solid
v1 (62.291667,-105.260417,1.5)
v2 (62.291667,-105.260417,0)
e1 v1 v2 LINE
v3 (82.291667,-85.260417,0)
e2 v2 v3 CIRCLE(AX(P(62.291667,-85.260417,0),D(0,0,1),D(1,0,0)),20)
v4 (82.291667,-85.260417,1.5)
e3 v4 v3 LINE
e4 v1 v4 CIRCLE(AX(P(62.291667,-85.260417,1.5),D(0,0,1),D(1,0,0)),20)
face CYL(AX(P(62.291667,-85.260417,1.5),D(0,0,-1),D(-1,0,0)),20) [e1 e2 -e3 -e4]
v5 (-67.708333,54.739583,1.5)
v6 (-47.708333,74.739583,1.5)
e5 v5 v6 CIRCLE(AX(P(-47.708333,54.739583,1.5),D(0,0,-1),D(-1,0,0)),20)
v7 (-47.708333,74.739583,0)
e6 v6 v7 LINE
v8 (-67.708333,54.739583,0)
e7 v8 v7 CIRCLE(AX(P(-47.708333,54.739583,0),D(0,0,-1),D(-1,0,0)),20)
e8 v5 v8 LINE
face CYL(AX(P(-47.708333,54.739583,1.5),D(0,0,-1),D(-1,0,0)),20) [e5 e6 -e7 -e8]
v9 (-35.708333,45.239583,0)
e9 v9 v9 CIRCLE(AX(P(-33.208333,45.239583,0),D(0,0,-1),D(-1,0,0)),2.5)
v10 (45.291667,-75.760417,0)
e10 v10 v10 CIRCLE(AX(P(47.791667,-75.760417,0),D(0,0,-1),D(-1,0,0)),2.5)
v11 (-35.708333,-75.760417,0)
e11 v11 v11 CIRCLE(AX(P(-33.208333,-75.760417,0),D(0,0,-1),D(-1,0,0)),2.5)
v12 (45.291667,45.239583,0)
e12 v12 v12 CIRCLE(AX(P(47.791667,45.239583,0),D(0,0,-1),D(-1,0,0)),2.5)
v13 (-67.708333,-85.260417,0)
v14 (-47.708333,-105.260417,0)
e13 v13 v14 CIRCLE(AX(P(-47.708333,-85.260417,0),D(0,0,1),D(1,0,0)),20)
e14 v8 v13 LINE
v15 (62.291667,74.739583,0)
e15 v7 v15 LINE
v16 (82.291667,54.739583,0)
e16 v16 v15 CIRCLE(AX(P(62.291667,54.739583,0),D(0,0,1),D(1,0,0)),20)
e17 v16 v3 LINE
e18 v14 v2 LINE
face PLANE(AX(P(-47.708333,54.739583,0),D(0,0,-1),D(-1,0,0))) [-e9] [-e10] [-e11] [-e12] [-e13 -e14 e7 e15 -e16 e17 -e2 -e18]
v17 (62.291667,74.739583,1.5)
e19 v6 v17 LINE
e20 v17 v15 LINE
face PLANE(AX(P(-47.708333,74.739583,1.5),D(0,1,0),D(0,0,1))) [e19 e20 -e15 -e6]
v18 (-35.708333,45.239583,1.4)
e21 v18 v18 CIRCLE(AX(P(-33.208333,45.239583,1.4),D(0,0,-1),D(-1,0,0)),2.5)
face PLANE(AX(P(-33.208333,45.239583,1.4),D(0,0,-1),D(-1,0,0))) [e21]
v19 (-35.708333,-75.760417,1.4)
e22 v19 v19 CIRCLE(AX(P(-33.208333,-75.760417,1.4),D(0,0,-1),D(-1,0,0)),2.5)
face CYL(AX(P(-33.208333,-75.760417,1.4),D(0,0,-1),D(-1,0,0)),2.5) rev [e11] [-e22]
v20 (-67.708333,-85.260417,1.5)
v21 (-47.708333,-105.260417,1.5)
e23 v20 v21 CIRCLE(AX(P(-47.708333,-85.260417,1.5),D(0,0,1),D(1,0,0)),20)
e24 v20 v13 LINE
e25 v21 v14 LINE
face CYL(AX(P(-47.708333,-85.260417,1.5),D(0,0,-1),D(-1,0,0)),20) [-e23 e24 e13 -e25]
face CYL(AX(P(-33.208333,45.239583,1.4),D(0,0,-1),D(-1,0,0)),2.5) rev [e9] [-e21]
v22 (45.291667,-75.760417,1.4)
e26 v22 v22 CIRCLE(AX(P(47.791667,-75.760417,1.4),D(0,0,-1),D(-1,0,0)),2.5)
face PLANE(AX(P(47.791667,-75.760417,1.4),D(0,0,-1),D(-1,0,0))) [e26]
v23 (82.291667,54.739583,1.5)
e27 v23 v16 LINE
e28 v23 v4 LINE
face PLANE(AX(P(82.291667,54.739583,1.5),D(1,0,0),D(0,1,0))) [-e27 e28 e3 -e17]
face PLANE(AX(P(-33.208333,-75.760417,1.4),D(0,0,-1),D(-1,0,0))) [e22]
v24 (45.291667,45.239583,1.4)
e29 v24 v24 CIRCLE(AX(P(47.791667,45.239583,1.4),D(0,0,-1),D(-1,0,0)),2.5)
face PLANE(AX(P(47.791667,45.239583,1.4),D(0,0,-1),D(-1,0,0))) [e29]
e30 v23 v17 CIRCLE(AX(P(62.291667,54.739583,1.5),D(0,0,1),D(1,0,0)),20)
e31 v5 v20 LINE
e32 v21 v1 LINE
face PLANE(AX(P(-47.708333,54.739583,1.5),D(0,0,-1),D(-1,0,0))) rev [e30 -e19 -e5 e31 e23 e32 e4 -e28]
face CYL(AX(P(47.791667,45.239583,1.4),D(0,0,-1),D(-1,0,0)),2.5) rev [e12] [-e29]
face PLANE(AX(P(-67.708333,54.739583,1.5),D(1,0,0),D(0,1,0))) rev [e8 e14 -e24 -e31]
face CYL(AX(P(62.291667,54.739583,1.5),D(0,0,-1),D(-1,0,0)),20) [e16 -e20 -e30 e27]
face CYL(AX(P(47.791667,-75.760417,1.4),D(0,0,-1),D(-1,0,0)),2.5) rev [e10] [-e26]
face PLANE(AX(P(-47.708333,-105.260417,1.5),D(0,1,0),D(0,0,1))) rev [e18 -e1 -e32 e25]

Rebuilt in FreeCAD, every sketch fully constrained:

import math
import FreeCAD as App
import Part
import Sketcher

doc = App.newDocument("Part")
body = doc.addObject("PartDesign::Body", "Body")

# Sketch on XY plane
sketch1 = doc.addObject("Sketcher::SketchObject", "Sketch")
body.addObject(sketch1)
sketch1.AttachmentSupport = (doc.XY_Plane, [""])
sketch1.MapMode = "FlatFace"
sketch1.addGeometry(Part.LineSegment(App.Vector(62, 75, 0), App.Vector(-48, 75, 0)), False)
sketch1.addGeometry(Part.ArcOfCircle(Part.Circle(App.Vector(-48, 55, 0), App.Vector(0, 0, 1), 20), math.radians(90), math.radians(180)), False)
sketch1.addGeometry(Part.LineSegment(App.Vector(-68, 55, 0), App.Vector(-68, -85, 0)), False)
sketch1.addGeometry(Part.ArcOfCircle(Part.Circle(App.Vector(-48, -85, 0), App.Vector(0, 0, 1), 20), math.radians(-180), math.radians(-90)), False)
sketch1.addGeometry(Part.LineSegment(App.Vector(-48, -105, 0), App.Vector(62, -105, 0)), False)
sketch1.addGeometry(Part.ArcOfCircle(Part.Circle(App.Vector(62, -85, 0), App.Vector(0, 0, 1), 20), math.radians(-90), math.radians(0)), False)
sketch1.addGeometry(Part.LineSegment(App.Vector(82, -85, 0), App.Vector(82, 55, 0)), False)
sketch1.addGeometry(Part.ArcOfCircle(Part.Circle(App.Vector(62, 55, 0), App.Vector(0, 0, 1), 20), math.radians(0), math.radians(90)), False)
sketch1.addConstraint(Sketcher.Constraint("Tangent", 0, 2, 1, 1))
sketch1.addConstraint(Sketcher.Constraint("Tangent", 1, 2, 2, 1))
sketch1.addConstraint(Sketcher.Constraint("Tangent", 2, 2, 3, 1))
sketch1.addConstraint(Sketcher.Constraint("Tangent", 3, 2, 4, 1))
sketch1.addConstraint(Sketcher.Constraint("Tangent", 4, 2, 5, 1))
sketch1.addConstraint(Sketcher.Constraint("Tangent", 5, 2, 6, 1))
sketch1.addConstraint(Sketcher.Constraint("Tangent", 6, 2, 7, 1))
sketch1.addConstraint(Sketcher.Constraint("Tangent", 7, 2, 0, 1))
sketch1.addConstraint(Sketcher.Constraint("Horizontal", 0))
sketch1.addConstraint(Sketcher.Constraint("Vertical", 2))
sketch1.addConstraint(Sketcher.Constraint("Horizontal", 4))
sketch1.addConstraint(Sketcher.Constraint("Vertical", 6))
sketch1.addConstraint(Sketcher.Constraint("Equal", 1, 3))
sketch1.addConstraint(Sketcher.Constraint("Equal", 3, 5))
sketch1.addConstraint(Sketcher.Constraint("Equal", 5, 7))
sketch1.addConstraint(Sketcher.Constraint("Radius", 1, 20.0))
sketch1.addConstraint(Sketcher.Constraint("DistanceX", 0, 2, 0, 1, 110.0))
sketch1.addConstraint(Sketcher.Constraint("DistanceY", 2, 2, 2, 1, 140.0))
sketch1.addConstraint(Sketcher.Constraint("DistanceX", 1, 3, -1, 1, 47.708333))
sketch1.addConstraint(Sketcher.Constraint("DistanceY", -1, 1, 1, 3, 54.739583))
pad1 = doc.addObject("PartDesign::Pad", "Pad")
body.addObject(pad1)
pad1.Profile = sketch1
pad1.Length = 1.5

# Sketch on XY plane
sketch2 = doc.addObject("Sketcher::SketchObject", "Sketch001")
body.addObject(sketch2)
sketch2.AttachmentSupport = (doc.XY_Plane, [""])
sketch2.MapMode = "FlatFace"
sketch2.addGeometry(Part.Circle(App.Vector(47.8, 45.2, 0), App.Vector(0, 0, 1), 2.5), False)
sketch2.addGeometry(Part.Circle(App.Vector(-33.2, 45.2, 0), App.Vector(0, 0, 1), 2.5), False)
sketch2.addGeometry(Part.Circle(App.Vector(-33.2, -75.8, 0), App.Vector(0, 0, 1), 2.5), False)
sketch2.addGeometry(Part.Circle(App.Vector(47.8, -75.8, 0), App.Vector(0, 0, 1), 2.5), False)
sketch2.addConstraint(Sketcher.Constraint("Equal", 0, 1))
sketch2.addConstraint(Sketcher.Constraint("Equal", 1, 2))
sketch2.addConstraint(Sketcher.Constraint("Equal", 2, 3))
sketch2.addConstraint(Sketcher.Constraint("Horizontal", 0, 3, 1, 3))
sketch2.addConstraint(Sketcher.Constraint("Horizontal", 2, 3, 3, 3))
sketch2.addConstraint(Sketcher.Constraint("Vertical", 1, 3, 2, 3))
sketch2.addConstraint(Sketcher.Constraint("Vertical", 0, 3, 3, 3))
sketch2.addConstraint(Sketcher.Constraint("Diameter", 0, 5.0))
sketch2.addConstraint(Sketcher.Constraint("DistanceX", 1, 3, 0, 3, 81.0))
sketch2.addConstraint(Sketcher.Constraint("DistanceY", 2, 3, 1, 3, 121.0))
sketch2.addConstraint(Sketcher.Constraint("DistanceX", -1, 1, 0, 3, 47.791667))
sketch2.addConstraint(Sketcher.Constraint("DistanceY", -1, 1, 0, 3, 45.239583))
pocket1 = doc.addObject("PartDesign::Pocket", "Pocket")
body.addObject(pocket1)
pocket1.Profile = sketch2
pocket1.Length = 1.4
pocket1.Reversed = True

doc.recompute()
